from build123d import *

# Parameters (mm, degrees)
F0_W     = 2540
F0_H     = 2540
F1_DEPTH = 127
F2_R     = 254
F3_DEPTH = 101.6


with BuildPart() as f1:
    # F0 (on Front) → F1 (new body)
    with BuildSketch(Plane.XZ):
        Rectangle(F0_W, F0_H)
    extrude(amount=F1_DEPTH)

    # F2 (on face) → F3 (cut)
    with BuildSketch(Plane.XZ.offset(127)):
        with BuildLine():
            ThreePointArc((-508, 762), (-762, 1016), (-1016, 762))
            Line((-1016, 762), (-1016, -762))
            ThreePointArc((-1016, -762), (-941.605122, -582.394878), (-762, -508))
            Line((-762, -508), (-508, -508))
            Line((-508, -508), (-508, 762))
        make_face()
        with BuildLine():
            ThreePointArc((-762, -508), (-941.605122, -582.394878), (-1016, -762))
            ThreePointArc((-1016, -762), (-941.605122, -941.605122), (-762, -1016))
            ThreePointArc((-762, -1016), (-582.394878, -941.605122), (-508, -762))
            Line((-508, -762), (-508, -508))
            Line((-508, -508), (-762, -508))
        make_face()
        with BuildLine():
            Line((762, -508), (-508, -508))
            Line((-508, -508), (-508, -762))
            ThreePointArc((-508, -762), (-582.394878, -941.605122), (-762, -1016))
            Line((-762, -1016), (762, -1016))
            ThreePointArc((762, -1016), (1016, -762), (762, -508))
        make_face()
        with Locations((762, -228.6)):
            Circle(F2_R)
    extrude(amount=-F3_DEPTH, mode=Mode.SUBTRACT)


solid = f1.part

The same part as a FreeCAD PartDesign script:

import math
import FreeCAD as App
import Part
import Sketcher
Q = App.Units.Quantity


def add_polygon(sketch, points):
    """Adds a closed chain of lines whose ends are joined by coincident constraints."""
    first, n = sketch.GeometryCount, len(points)
    for a, b in zip(points, points[1:] + points[:1]):
        sketch.addGeometry(Part.LineSegment(App.Vector(*a, 0), App.Vector(*b, 0)), False)
    for i in range(n):
        sketch.addConstraint(Sketcher.Constraint("Coincident", first + i, 2, first + (i + 1) % n, 1))

doc = App.newDocument("Part")
body = doc.addObject("PartDesign::Body", "Body")

# Sketch on XZ plane
sketch1 = doc.addObject("Sketcher::SketchObject", "Sketch")
body.addObject(sketch1)
sketch1.AttachmentSupport = (doc.XZ_Plane, [""])
sketch1.MapMode = "FlatFace"
add_polygon(sketch1, [(-1270, 1270), (-1270, -1270), (1270, -1270), (1270, 1270)])  # lines 0-3
sketch1.addConstraint([
    Sketcher.Constraint("Vertical", 0),
    Sketcher.Constraint("Horizontal", 1),
    Sketcher.Constraint("Vertical", 2),
    Sketcher.Constraint("Horizontal", 3),
    Sketcher.Constraint("Symmetric", 0, 2, 2, 2, -1, 1),
    Sketcher.Constraint("Equal", 3, 0),
    Sketcher.Constraint("DistanceX", 1, 1, 1, 2, Q("100 in")),
])
pad1 = doc.addObject("PartDesign::Pad", "Pad")
body.addObject(pad1)
pad1.Profile = sketch1
pad1.Length = Q("5 in")

# Sketch on XZ plane
sketch2 = doc.addObject("Sketcher::SketchObject", "Sketch001")
body.addObject(sketch2)
sketch2.AttachmentSupport = (doc.XZ_Plane, [""])
sketch2.MapMode = "FlatFace"
sketch2.AttachmentOffset = App.Placement(App.Vector(0, 0, 5 * 25.4), App.Rotation())
sketch2.addGeometry([
    Part.ArcOfCircle(Part.Circle(App.Vector(-762, 762, 0), App.Vector(0, 0, 1), 254), math.radians(0), math.radians(180)),  # 0
    Part.LineSegment(App.Vector(-1016, 762, 0), App.Vector(-1016, -762, 0)),  # 1
    Part.ArcOfCircle(Part.Circle(App.Vector(-762, -762, 0), App.Vector(0, 0, 1), 254), math.radians(-180), math.radians(-90)),  # 2
    Part.LineSegment(App.Vector(-762, -1016, 0), App.Vector(762, -1016, 0)),  # 3
    Part.ArcOfCircle(Part.Circle(App.Vector(762, -762, 0), App.Vector(0, 0, 1), 254), math.radians(-90), math.radians(90)),  # 4
    Part.LineSegment(App.Vector(762, -508, 0), App.Vector(-508, -508, 0)),  # 5
    Part.LineSegment(App.Vector(-508, -508, 0), App.Vector(-508, 762, 0)),  # 6
    Part.Circle(App.Vector(762, -229, 0), App.Vector(0, 0, 1), 254),  # 7
], False)
sketch2.addConstraint([
    Sketcher.Constraint("Tangent", 0, 2, 1, 1),
    Sketcher.Constraint("Tangent", 1, 2, 2, 1),
    Sketcher.Constraint("Tangent", 2, 2, 3, 1),
    Sketcher.Constraint("Tangent", 3, 2, 4, 1),
    Sketcher.Constraint("Tangent", 4, 2, 5, 1),
    Sketcher.Constraint("Coincident", 5, 2, 6, 1),
    Sketcher.Constraint("Tangent", 6, 2, 0, 1),
    Sketcher.Constraint("Vertical", 1),
    Sketcher.Constraint("Horizontal", 3),
    Sketcher.Constraint("Horizontal", 5),
    Sketcher.Constraint("Vertical", 6),
    Sketcher.Constraint("Equal", 0, 2),
    Sketcher.Constraint("Equal", 2, 4),
    Sketcher.Constraint("Equal", 4, 7),
    Sketcher.Constraint("Symmetric", 0, 3, 4, 3, -1, 1),
    Sketcher.Constraint("Vertical", 4, 3, 7, 3),
    Sketcher.Constraint("Equal", 3, 1),
    Sketcher.Constraint("Diameter", 7, Q("20 in")),
    Sketcher.Constraint("DistanceX", 3, 1, 3, 2, Q("60 in")),
    Sketcher.Constraint("DistanceY", 7, 3, -1, 1, Q("9 in")),
])
pocket1 = doc.addObject("PartDesign::Pocket", "Pocket")
body.addObject(pocket1)
pocket1.Profile = sketch2
pocket1.Length = Q("4 in")

doc.recompute()
